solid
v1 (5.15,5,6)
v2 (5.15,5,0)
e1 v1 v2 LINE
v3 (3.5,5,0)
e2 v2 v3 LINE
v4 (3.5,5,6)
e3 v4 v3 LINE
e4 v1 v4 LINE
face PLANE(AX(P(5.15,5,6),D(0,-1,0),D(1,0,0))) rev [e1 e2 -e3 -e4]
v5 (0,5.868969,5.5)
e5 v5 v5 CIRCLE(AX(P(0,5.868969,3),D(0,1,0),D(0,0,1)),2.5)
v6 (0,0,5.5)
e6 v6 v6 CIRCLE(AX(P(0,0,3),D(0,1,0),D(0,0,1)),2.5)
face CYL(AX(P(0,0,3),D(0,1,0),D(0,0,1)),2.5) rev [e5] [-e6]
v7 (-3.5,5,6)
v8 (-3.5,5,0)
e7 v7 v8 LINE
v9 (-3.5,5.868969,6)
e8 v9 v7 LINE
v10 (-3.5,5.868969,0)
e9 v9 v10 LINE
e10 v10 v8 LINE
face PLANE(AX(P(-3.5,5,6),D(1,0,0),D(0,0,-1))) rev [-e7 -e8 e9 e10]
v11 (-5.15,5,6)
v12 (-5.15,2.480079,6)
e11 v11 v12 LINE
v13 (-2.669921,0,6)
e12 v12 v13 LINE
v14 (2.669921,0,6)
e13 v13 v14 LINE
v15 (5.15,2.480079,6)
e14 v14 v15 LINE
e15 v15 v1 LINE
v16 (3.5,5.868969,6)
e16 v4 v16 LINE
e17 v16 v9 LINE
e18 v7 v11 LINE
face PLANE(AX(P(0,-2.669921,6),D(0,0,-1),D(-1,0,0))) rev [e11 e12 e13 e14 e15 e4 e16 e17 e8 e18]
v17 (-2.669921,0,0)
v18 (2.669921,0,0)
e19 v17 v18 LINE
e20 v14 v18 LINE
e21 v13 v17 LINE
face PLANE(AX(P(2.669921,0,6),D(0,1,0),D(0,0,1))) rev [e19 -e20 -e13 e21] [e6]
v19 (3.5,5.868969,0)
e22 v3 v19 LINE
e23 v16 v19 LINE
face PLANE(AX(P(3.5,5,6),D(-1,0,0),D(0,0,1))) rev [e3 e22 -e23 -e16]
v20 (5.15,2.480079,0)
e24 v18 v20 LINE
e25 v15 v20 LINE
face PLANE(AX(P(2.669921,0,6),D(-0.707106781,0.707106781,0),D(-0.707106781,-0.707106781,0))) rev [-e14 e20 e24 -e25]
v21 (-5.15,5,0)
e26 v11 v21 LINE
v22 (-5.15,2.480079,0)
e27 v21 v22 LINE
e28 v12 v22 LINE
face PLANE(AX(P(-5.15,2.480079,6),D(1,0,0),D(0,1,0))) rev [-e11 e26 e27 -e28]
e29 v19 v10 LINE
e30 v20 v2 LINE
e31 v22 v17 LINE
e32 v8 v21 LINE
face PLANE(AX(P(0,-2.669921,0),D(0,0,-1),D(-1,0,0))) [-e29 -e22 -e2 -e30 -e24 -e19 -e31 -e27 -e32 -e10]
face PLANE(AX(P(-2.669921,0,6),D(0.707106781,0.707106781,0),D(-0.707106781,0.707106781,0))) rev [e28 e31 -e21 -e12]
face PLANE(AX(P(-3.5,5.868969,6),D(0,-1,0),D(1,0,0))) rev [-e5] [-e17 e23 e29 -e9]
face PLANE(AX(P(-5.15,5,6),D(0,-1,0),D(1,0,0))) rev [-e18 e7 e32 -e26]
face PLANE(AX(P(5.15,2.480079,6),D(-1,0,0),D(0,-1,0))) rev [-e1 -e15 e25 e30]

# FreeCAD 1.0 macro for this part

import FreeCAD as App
import Part
import Sketcher
Q = App.Units.Quantity

doc = App.newDocument("Part")
body = doc.addObject("PartDesign::Body", "Body")

# Sketch on XY plane
sketch1 = body.newObject("Sketcher::SketchObject", "Sketch")
sketch1.AttachmentSupport = (doc.getObject("XY_Plane"), [""])
sketch1.MapMode = "FlatFace"
sketch1.addGeometry([
    Part.LineSegment(App.Vector(-2.669921, 0, 0), App.Vector(2.669921, 0, 0)),  # 0
    Part.LineSegment(App.Vector(2.669921, 0, 0), App.Vector(5.15, 2.480079, 0)),  # 1
    Part.LineSegment(App.Vector(5.15, 2.480079, 0), App.Vector(5.15, 5, 0)),  # 2
    Part.LineSegment(App.Vector(5.15, 5, 0), App.Vector(3.5, 5, 0)),  # 3
    Part.LineSegment(App.Vector(3.5, 5, 0), App.Vector(3.5, 5.868969, 0)),  # 4
    Part.LineSegment(App.Vector(3.5, 5.868969, 0), App.Vector(-3.5, 5.868969, 0)),  # 5
    Part.LineSegment(App.Vector(-3.5, 5.868969, 0), App.Vector(-3.5, 5, 0)),  # 6
    Part.LineSegment(App.Vector(-3.5, 5, 0), App.Vector(-5.15, 5, 0)),  # 7
    Part.LineSegment(App.Vector(-5.15, 5, 0), App.Vector(-5.15, 2.480079, 0)),  # 8
    Part.LineSegment(App.Vector(-5.15, 2.480079, 0), App.Vector(-2.669921, 0, 0)),  # 9
], False)
sketch1.addConstraint([
    Sketcher.Constraint("Coincident", 0, 2, 1, 1),
    Sketcher.Constraint("Coincident", 1, 2, 2, 1),
    Sketcher.Constraint("Coincident", 2, 2, 3, 1),
    Sketcher.Constraint("Coincident", 3, 2, 4, 1),
    Sketcher.Constraint("Coincident", 4, 2, 5, 1),
    Sketcher.Constraint("Coincident", 5, 2, 6, 1),
    Sketcher.Constraint("Coincident", 6, 2, 7, 1),
    Sketcher.Constraint("Coincident", 7, 2, 8, 1),
    Sketcher.Constraint("Coincident", 8, 2, 9, 1),
    Sketcher.Constraint("Coincident", 9, 2, 0, 1),
    Sketcher.Constraint("Horizontal", 0),
    Sketcher.Constraint("Vertical", 2),
    Sketcher.Constraint("Horizontal", 3),
    Sketcher.Constraint("Vertical", 4),
    Sketcher.Constraint("Horizontal", 5),
    Sketcher.Constraint("Vertical", 6),
    Sketcher.Constraint("Horizontal", 7),
    Sketcher.Constraint("Vertical", 8),
    Sketcher.Constraint("Symmetric", 0, 2, 9, 2, -1, 1),
    Sketcher.Constraint("Symmetric", 3, 2, 6, 2, -2),
    Sketcher.Constraint("Symmetric", 1, 2, 8, 2, -2),
    Sketcher.Constraint("Perpendicular", 1, 9),
    Sketcher.Constraint("DistanceX", 5, 2, 5, 1, Q("7 mm")),
    Sketcher.Constraint("DistanceY", -1, 1, 2, 2, Q("5 mm")),
    Sketcher.Constraint("DistanceX", 3, 2, 3, 1, Q("1.65 mm")),
    Sketcher.Constraint("DistanceY", 2, 1, 2, 2, Q("2.519921 mm")),
    Sketcher.Constraint("DistanceY", 4, 1, 4, 2, Q("0.868969 mm")),
])
pad1 = body.newObject("PartDesign::Pad", "Pad")
pad1.Profile = sketch1
pad1.Length = 6

# Sketch on XZ plane
sketch2 = body.newObject("Sketcher::SketchObject", "Sketch001")
sketch2.AttachmentSupport = (doc.getObject("XZ_Plane"), [""])
sketch2.MapMode = "FlatFace"
sketch2.AttachmentOffset = App.Placement(App.Vector(0, 0, -5.868969), App.Rotation())
sketch2.addGeometry(Part.Circle(App.Vector(0, 3, 0), App.Vector(0, 0, 1), 2.5), False)
sketch2.addConstraint([
    Sketcher.Constraint("PointOnObject", 0, 3, -2),
    Sketcher.Constraint("Diameter", 0, Q("5 mm")),
    Sketcher.Constraint("DistanceY", -1, 1, 0, 3, Q("3 mm")),
])
pocket1 = body.newObject("PartDesign::Pocket", "Pocket")
pocket1.Profile = sketch2
pocket1.Type = "ThroughAll"
pocket1.Reversed = True

doc.recompute()
